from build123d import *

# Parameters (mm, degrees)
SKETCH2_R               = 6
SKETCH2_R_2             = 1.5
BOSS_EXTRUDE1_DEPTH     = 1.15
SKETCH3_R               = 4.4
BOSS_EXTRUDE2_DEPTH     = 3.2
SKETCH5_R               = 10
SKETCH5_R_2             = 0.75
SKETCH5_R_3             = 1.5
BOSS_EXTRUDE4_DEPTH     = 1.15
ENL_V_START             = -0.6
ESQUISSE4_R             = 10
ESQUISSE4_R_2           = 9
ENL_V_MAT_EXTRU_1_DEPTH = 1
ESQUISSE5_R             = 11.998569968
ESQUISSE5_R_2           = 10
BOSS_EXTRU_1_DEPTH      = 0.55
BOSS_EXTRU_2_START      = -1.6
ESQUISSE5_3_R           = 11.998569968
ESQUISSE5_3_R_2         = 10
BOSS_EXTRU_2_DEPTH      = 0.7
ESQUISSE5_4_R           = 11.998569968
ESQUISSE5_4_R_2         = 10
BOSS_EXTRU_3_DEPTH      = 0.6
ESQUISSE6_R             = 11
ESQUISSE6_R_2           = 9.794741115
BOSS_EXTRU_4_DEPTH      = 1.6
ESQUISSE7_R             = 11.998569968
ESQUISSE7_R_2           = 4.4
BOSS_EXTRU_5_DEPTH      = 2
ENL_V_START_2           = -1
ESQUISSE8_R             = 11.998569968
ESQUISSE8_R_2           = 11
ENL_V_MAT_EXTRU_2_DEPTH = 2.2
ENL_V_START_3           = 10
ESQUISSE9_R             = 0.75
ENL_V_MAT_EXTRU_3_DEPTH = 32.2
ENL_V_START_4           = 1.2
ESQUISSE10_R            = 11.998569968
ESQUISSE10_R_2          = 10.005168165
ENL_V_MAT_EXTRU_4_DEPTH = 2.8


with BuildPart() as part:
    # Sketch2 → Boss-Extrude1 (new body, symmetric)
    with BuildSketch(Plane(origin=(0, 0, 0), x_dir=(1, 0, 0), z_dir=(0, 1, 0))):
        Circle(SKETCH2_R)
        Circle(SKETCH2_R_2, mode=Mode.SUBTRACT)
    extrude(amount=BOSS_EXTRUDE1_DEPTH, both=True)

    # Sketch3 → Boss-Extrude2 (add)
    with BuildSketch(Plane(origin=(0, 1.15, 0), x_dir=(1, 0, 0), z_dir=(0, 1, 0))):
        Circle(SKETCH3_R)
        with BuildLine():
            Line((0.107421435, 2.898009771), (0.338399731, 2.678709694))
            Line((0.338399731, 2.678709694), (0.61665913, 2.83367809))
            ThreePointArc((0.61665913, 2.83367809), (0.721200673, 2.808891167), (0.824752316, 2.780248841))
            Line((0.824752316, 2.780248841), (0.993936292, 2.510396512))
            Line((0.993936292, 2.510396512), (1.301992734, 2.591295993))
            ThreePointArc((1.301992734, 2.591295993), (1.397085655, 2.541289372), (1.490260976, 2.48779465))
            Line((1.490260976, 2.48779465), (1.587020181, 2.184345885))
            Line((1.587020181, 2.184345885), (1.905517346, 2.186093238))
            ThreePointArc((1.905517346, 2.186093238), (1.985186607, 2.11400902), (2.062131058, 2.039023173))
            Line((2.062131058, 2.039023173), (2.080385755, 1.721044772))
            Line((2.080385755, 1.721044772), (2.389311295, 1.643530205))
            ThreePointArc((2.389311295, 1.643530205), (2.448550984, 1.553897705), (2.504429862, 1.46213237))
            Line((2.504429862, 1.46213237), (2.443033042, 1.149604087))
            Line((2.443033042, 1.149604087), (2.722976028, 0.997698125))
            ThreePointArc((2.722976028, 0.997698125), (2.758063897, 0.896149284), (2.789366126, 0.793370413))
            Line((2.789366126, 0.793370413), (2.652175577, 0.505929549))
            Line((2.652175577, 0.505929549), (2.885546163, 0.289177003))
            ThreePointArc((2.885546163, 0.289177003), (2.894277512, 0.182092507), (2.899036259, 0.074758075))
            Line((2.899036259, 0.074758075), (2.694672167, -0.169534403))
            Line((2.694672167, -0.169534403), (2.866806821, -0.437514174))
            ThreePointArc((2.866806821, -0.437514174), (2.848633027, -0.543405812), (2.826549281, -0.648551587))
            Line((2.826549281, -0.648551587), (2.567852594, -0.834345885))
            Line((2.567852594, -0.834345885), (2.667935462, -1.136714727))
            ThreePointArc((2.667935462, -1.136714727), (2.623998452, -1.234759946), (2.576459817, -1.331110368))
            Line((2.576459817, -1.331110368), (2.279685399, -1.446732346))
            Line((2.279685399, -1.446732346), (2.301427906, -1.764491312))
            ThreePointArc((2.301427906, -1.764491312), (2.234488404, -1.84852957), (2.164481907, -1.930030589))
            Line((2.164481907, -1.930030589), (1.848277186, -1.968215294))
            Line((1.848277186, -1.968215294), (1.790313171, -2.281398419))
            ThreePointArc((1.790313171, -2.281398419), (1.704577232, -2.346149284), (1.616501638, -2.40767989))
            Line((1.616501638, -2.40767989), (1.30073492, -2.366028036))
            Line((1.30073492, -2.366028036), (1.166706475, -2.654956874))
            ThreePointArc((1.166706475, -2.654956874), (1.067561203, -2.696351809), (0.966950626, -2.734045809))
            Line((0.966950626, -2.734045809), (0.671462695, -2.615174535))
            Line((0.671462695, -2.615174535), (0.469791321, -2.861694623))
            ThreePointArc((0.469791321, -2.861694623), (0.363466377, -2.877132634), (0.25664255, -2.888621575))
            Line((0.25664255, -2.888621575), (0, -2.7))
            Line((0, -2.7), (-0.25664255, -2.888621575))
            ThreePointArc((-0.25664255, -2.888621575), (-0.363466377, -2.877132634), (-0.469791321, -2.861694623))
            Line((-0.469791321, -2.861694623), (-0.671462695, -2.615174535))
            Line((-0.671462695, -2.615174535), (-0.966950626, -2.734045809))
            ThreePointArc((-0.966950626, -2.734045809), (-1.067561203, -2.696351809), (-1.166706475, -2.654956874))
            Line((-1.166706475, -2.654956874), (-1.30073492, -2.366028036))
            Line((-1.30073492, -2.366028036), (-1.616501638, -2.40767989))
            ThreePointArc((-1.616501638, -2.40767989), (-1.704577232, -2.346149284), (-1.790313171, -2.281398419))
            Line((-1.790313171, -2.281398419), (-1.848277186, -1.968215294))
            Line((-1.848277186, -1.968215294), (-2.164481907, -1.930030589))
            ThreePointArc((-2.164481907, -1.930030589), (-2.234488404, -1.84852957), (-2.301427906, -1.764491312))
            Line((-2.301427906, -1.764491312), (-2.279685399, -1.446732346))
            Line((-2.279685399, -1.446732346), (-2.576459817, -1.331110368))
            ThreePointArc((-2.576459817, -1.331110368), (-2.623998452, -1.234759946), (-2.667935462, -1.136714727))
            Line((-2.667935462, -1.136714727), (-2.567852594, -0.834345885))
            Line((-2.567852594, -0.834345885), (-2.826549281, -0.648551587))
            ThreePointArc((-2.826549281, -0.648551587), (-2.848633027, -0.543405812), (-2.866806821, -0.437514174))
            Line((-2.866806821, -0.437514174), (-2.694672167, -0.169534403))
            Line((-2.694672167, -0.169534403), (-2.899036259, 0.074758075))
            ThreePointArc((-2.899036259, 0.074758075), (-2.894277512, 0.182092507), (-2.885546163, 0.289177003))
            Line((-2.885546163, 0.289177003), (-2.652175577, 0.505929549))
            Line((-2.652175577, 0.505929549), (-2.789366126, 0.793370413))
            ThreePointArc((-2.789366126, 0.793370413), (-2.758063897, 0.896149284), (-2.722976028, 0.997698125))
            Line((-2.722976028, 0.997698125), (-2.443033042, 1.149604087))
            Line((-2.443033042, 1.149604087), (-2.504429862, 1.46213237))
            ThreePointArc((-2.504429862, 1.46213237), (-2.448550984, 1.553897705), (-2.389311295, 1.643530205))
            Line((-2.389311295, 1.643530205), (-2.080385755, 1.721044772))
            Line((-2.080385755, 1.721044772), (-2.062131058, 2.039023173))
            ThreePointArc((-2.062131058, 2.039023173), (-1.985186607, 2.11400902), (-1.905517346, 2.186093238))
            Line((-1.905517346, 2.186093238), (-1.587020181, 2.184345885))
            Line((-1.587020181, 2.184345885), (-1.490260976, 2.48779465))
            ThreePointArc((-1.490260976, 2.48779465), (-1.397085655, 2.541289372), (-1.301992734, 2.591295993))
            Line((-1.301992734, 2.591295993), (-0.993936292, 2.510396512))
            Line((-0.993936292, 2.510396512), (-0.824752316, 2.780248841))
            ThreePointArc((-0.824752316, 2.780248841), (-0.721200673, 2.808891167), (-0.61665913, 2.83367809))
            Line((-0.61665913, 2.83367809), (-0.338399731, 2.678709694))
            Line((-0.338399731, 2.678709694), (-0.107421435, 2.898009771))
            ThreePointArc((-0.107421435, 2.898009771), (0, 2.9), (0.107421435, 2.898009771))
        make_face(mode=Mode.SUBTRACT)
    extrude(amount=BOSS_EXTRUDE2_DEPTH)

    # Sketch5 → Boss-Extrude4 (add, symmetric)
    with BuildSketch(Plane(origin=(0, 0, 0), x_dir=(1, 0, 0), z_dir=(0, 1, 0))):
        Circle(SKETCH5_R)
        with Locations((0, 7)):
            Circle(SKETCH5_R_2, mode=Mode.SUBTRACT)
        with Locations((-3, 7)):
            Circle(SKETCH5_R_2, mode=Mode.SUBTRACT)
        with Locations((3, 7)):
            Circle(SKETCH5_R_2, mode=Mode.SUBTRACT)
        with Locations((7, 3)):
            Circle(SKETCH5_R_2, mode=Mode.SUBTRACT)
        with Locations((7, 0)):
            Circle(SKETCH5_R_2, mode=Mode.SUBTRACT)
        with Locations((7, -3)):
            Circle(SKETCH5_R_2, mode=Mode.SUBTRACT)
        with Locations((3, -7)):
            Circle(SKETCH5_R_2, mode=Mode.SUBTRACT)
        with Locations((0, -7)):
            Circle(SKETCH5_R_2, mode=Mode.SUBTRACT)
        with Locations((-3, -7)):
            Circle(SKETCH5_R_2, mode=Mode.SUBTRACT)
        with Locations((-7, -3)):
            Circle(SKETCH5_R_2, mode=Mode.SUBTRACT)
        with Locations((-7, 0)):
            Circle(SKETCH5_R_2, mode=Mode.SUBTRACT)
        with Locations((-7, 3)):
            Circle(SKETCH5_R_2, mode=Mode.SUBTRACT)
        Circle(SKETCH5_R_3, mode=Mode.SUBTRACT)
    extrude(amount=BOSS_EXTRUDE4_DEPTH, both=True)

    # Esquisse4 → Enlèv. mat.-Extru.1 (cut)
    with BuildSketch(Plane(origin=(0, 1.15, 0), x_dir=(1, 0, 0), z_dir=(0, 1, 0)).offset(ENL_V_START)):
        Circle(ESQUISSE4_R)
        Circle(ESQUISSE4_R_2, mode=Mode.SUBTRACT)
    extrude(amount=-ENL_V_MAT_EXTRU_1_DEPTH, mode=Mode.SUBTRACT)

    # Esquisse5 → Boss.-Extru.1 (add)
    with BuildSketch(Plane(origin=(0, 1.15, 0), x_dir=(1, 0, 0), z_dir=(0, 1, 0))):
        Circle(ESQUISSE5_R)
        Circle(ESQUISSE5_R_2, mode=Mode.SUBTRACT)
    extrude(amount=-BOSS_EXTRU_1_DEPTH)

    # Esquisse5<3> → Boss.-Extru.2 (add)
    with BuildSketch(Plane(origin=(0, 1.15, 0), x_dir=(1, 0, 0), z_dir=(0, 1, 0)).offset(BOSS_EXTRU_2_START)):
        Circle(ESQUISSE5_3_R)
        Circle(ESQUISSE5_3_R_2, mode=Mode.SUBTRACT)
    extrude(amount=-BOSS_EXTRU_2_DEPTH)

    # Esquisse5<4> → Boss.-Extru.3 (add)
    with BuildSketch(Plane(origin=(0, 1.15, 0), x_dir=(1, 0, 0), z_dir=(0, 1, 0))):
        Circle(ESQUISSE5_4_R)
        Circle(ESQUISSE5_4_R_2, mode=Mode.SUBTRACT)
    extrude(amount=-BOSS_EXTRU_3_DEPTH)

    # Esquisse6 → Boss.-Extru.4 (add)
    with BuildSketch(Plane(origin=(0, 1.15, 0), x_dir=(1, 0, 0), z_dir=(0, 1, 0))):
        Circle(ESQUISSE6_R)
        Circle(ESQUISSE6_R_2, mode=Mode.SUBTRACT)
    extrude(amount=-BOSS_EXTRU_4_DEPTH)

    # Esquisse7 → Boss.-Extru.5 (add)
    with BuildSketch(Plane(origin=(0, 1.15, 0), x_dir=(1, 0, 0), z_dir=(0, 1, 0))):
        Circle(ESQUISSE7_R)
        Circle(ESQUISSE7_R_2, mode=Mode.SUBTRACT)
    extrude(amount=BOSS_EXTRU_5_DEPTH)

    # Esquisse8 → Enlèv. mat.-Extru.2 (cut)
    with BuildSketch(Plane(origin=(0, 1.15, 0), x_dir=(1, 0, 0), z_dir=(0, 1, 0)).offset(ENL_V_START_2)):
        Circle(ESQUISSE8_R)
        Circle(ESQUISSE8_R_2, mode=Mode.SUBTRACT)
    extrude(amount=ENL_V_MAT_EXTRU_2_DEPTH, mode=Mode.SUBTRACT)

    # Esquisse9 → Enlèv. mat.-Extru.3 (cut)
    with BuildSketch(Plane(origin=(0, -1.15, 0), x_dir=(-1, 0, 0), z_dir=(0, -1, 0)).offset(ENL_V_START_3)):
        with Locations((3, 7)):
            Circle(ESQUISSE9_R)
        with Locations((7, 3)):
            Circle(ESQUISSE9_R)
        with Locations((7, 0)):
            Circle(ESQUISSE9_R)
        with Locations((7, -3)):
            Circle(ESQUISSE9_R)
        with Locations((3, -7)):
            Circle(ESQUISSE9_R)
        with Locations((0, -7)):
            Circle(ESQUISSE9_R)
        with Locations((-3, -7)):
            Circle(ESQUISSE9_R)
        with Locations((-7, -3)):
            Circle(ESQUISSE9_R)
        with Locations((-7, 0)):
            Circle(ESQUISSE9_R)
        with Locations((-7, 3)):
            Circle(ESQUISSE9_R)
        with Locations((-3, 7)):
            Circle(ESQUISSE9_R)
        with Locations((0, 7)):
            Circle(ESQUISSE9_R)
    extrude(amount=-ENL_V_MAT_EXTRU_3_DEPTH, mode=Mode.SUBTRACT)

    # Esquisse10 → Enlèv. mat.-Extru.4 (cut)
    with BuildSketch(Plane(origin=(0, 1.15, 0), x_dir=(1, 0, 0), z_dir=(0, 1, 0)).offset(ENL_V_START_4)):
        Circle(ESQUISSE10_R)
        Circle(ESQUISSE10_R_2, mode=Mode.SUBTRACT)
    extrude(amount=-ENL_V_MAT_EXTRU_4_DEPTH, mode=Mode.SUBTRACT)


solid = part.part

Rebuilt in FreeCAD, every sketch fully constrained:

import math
import FreeCAD as App
import Part
import Sketcher

doc = App.newDocument("Part")
body = doc.addObject("PartDesign::Body", "Body")

# Sketch on XZ plane
sketch1 = body.newObject("Sketcher::SketchObject", "Sketch")
sketch1.AttachmentSupport = (doc.getObject("XZ_Plane"), [""])
sketch1.MapMode = "FlatFace"
sketch1.addGeometry(Part.Circle(App.Vector(0, 0, 0), App.Vector(0, 0, 1), 6), False)
sketch1.addGeometry(Part.Circle(App.Vector(0, 0, 0), App.Vector(0, 0, 1), 1.5), False)
sketch1.addConstraint(Sketcher.Constraint("Coincident", 0, 3, -1, 1))
sketch1.addConstraint(Sketcher.Constraint("Coincident", 1, 3, -1, 1))
sketch1.addConstraint(Sketcher.Constraint("Diameter", 0, 12.0))
sketch1.addConstraint(Sketcher.Constraint("Diameter", 1, 3.0))
pad1 = body.newObject("PartDesign::Pad", "Pad")
pad1.Profile = sketch1
pad1.Length = 2.3
pad1.Midplane = True

# Sketch on XZ plane
sketch2 = body.newObject("Sketcher::SketchObject", "Sketch001")
sketch2.AttachmentSupport = (doc.getObject("XZ_Plane"), [""])
sketch2.MapMode = "FlatFace"
sketch2.AttachmentOffset = App.Placement(App.Vector(0, 0, -1.15), App.Rotation())
sketch2.addGeometry(Part.Circle(App.Vector(0, 0, 0), App.Vector(0, 0, 1), 4.4), False)
sketch2.addGeometry(Part.ArcOfCircle(Part.Circle(App.Vector(0, -0.000001, 0), App.Vector(0, 0, 1), 2.899999), math.radians(-92.122829), math.radians(-87.877171)), False)
sketch2.addGeometry(Part.LineSegment(App.Vector(0.107421, -2.89801, 0), App.Vector(0.3384, -2.67871, 0)), False)
sketch2.addGeometry(Part.LineSegment(App.Vector(0.3384, -2.67871, 0), App.Vector(0.616659, -2.833678, 0)), False)
sketch2.addGeometry(Part.ArcOfCircle(Part.Circle(App.Vector(0, 0, 0), App.Vector(0, 0, 1), 2.9), math.radians(-77.722828), math.radians(-73.477172)), False)
sketch2.addGeometry(Part.LineSegment(App.Vector(0.824752, -2.780249, 0), App.Vector(0.993936, -2.510397, 0)), False)
sketch2.addGeometry(Part.LineSegment(App.Vector(0.993936, -2.510397, 0), App.Vector(1.301993, -2.591296, 0)), False)
sketch2.addGeometry(Part.ArcOfCircle(Part.Circle(App.Vector(0, 0, 0), App.Vector(0, 0, 1), 2.9), math.radians(-63.322828), math.radians(-59.077171)), False)
sketch2.addGeometry(Part.LineSegment(App.Vector(1.490261, -2.487795, 0), App.Vector(1.58702, -2.184346, 0)), False)
sketch2.addGeometry(Part.LineSegment(App.Vector(1.58702, -2.184346, 0), App.Vector(1.905517, -2.186093, 0)), False)
sketch2.addGeometry(Part.ArcOfCircle(Part.Circle(App.Vector(0, 0, 0), App.Vector(0, 0, 1), 2.9), math.radians(-48.922829), math.radians(-44.677171)), False)
sketch2.addGeometry(Part.LineSegment(App.Vector(2.062131, -2.039023, 0), App.Vector(2.080386, -1.721045, 0)), False)
sketch2.addGeometry(Part.LineSegment(App.Vector(2.080386, -1.721045, 0), App.Vector(2.389311, -1.64353, 0)), False)
sketch2.addGeometry(Part.ArcOfCircle(Part.Circle(App.Vector(0, 0, 0), App.Vector(0, 0, 1), 2.9), math.radians(-34.522829), math.radians(-30.277172)), False)
sketch2.addGeometry(Part.LineSegment(App.Vector(2.50443, -1.462132, 0), App.Vector(2.443033, -1.149604, 0)), False)
sketch2.addGeometry(Part.LineSegment(App.Vector(2.443033, -1.149604, 0), App.Vector(2.722976, -0.997698, 0)), False)
sketch2.addGeometry(Part.ArcOfCircle(Part.Circle(App.Vector(0, 0, 0), App.Vector(0, 0, 1), 2.9), math.radians(-20.122829), math.radians(-15.877171)), False)
sketch2.addGeometry(Part.LineSegment(App.Vector(2.789366, -0.79337, 0), App.Vector(2.652176, -0.50593, 0)), False)
sketch2.addGeometry(Part.LineSegment(App.Vector(2.652176, -0.50593, 0), App.Vector(2.885546, -0.289177, 0)), False)
sketch2.addGeometry(Part.ArcOfCircle(Part.Circle(App.Vector(0, 0, 0), App.Vector(0, 0, 1), 2.9), math.radians(-5.722829), math.radians(-1.477172)), False)
sketch2.addGeometry(Part.LineSegment(App.Vector(2.899036, -0.074758, 0), App.Vector(2.694672, 0.169534, 0)), False)
sketch2.addGeometry(Part.LineSegment(App.Vector(2.694672, 0.169534, 0), App.Vector(2.866807, 0.437514, 0)), False)
sketch2.addGeometry(Part.ArcOfCircle(Part.Circle(App.Vector(0, 0, 0), App.Vector(0, 0, 1), 2.9), math.radians(8.677172), math.radians(12.922829)), False)
sketch2.addGeometry(Part.LineSegment(App.Vector(2.826549, 0.648552, 0), App.Vector(2.567853, 0.834346, 0)), False)
sketch2.addGeometry(Part.LineSegment(App.Vector(2.567853, 0.834346, 0), App.Vector(2.667935, 1.136715, 0)), False)
sketch2.addGeometry(Part.ArcOfCircle(Part.Circle(App.Vector(0, 0, 0), App.Vector(0, 0, 1), 2.9), math.radians(23.077171), math.radians(27.322829)), False)
sketch2.addGeometry(Part.LineSegment(App.Vector(2.57646, 1.33111, 0), App.Vector(2.279685, 1.446732, 0)), False)
sketch2.addGeometry(Part.LineSegment(App.Vector(2.279685, 1.446732, 0), App.Vector(2.301428, 1.764491, 0)), False)
sketch2.addGeometry(Part.ArcOfCircle(Part.Circle(App.Vector(0, 0, 0), App.Vector(0, 0, 1), 2.9), math.radians(37.477171), math.radians(41.722829)), False)
sketch2.addGeometry(Part.LineSegment(App.Vector(2.164482, 1.930031, 0), App.Vector(1.848277, 1.968215, 0)), False)
sketch2.addGeometry(Part.LineSegment(App.Vector(1.848277, 1.968215, 0), App.Vector(1.790313, 2.281398, 0)), False)
sketch2.addGeometry(Part.ArcOfCircle(Part.Circle(App.Vector(0.000001, 0.000001, 0), App.Vector(0, 0, 1), 2.899999), math.radians(51.87717), math.radians(56.12283)), False)
sketch2.addGeometry(Part.LineSegment(App.Vector(1.616502, 2.40768, 0), App.Vector(1.300735, 2.366028, 0)), False)
sketch2.addGeometry(Part.LineSegment(App.Vector(1.300735, 2.366028, 0), App.Vector(1.166706, 2.654957, 0)), False)
sketch2.addGeometry(Part.ArcOfCircle(Part.Circle(App.Vector(0, 0, 0), App.Vector(0, 0, 1), 2.9), math.radians(66.277171), math.radians(70.522829)), False)
sketch2.addGeometry(Part.LineSegment(App.Vector(0.966951, 2.734046, 0), App.Vector(0.671463, 2.615175, 0)), False)
sketch2.addGeometry(Part.LineSegment(App.Vector(0.671463, 2.615175, 0), App.Vector(0.469791, 2.861695, 0)), False)
sketch2.addGeometry(Part.ArcOfCircle(Part.Circle(App.Vector(0, 0, 0), App.Vector(0, 0, 1), 2.9), math.radians(80.677171), math.radians(84.922829)), False)
sketch2.addGeometry(Part.LineSegment(App.Vector(0.256643, 2.888622, 0), App.Vector(0, 2.7, 0)), False)
sketch2.addGeometry(Part.LineSegment(App.Vector(0, 2.7, 0), App.Vector(-0.256643, 2.888622, 0)), False)
sketch2.addGeometry(Part.ArcOfCircle(Part.Circle(App.Vector(0, 0, 0), App.Vector(0, 0, 1), 2.9), math.radians(95.077171), math.radians(99.322829)), False)
sketch2.addGeometry(Part.LineSegment(App.Vector(-0.469791, 2.861695, 0), App.Vector(-0.671463, 2.615175, 0)), False)
sketch2.addGeometry(Part.LineSegment(App.Vector(-0.671463, 2.615175, 0), App.Vector(-0.966951, 2.734046, 0)), False)
sketch2.addGeometry(Part.ArcOfCircle(Part.Circle(App.Vector(0, 0, 0), App.Vector(0, 0, 1), 2.9), math.radians(109.477171), math.radians(113.722829)), False)
sketch2.addGeometry(Part.LineSegment(App.Vector(-1.166706, 2.654957, 0), App.Vector(-1.300735, 2.366028, 0)), False)
sketch2.addGeometry(Part.LineSegment(App.Vector(-1.300735, 2.366028, 0), App.Vector(-1.616502, 2.40768, 0)), False)
sketch2.addGeometry(Part.ArcOfCircle(Part.Circle(App.Vector(-0.000001, 0.000001, 0), App.Vector(0, 0, 1), 2.899999), math.radians(123.87717), math.radians(128.12283)), False)
sketch2.addGeometry(Part.LineSegment(App.Vector(-1.790313, 2.281398, 0), App.Vector(-1.848277, 1.968215, 0)), False)
sketch2.addGeometry(Part.LineSegment(App.Vector(-1.848277, 1.968215, 0), App.Vector(-2.164482, 1.930031, 0)), False)
sketch2.addGeometry(Part.ArcOfCircle(Part.Circle(App.Vector(0, 0, 0), App.Vector(0, 0, 1), 2.9), math.radians(138.277171), math.radians(142.522829)), False)
sketch2.addGeometry(Part.LineSegment(App.Vector(-2.301428, 1.764491, 0), App.Vector(-2.279685, 1.446732, 0)), False)
sketch2.addGeometry(Part.LineSegment(App.Vector(-2.279685, 1.446732, 0), App.Vector(-2.57646, 1.33111, 0)), False)
sketch2.addGeometry(Part.ArcOfCircle(Part.Circle(App.Vector(0, 0, 0), App.Vector(0, 0, 1), 2.9), math.radians(152.677171), math.radians(156.922829)), False)
sketch2.addGeometry(Part.LineSegment(App.Vector(-2.667935, 1.136715, 0), App.Vector(-2.567853, 0.834346, 0)), False)
sketch2.addGeometry(Part.LineSegment(App.Vector(-2.567853, 0.834346, 0), App.Vector(-2.826549, 0.648552, 0)), False)
sketch2.addGeometry(Part.ArcOfCircle(Part.Circle(App.Vector(0, 0, 0), App.Vector(0, 0, 1), 2.9), math.radians(167.077171), math.radians(171.322828)), False)
sketch2.addGeometry(Part.LineSegment(App.Vector(-2.866807, 0.437514, 0), App.Vector(-2.694672, 0.169534, 0)), False)
sketch2.addGeometry(Part.LineSegment(App.Vector(-2.694672, 0.169534, 0), App.Vector(-2.899036, -0.074758, 0)), False)
sketch2.addGeometry(Part.ArcOfCircle(Part.Circle(App.Vector(0, 0, 0), App.Vector(0, 0, 1), 2.9), math.radians(-178.522828), math.radians(-174.277171)), False)
sketch2.addGeometry(Part.LineSegment(App.Vector(-2.885546, -0.289177, 0), App.Vector(-2.652176, -0.50593, 0)), False)
sketch2.addGeometry(Part.LineSegment(App.Vector(-2.652176, -0.50593, 0), App.Vector(-2.789366, -0.79337, 0)), False)
sketch2.addGeometry(Part.ArcOfCircle(Part.Circle(App.Vector(0, 0, 0), App.Vector(0, 0, 1), 2.9), math.radians(-164.122829), math.radians(-159.877171)), False)
sketch2.addGeometry(Part.LineSegment(App.Vector(-2.722976, -0.997698, 0), App.Vector(-2.443033, -1.149604, 0)), False)
sketch2.addGeometry(Part.LineSegment(App.Vector(-2.443033, -1.149604, 0), App.Vector(-2.50443, -1.462132, 0)), False)
sketch2.addGeometry(Part.ArcOfCircle(Part.Circle(App.Vector(0, 0, 0), App.Vector(0, 0, 1), 2.9), math.radians(-149.722828), math.radians(-145.477171)), False)
sketch2.addGeometry(Part.LineSegment(App.Vector(-2.389311, -1.64353, 0), App.Vector(-2.080386, -1.721045, 0)), False)
sketch2.addGeometry(Part.LineSegment(App.Vector(-2.080386, -1.721045, 0), App.Vector(-2.062131, -2.039023, 0)), False)
sketch2.addGeometry(Part.ArcOfCircle(Part.Circle(App.Vector(0, 0, 0), App.Vector(0, 0, 1), 2.9), math.radians(-135.322829), math.radians(-131.077171)), False)
sketch2.addGeometry(Part.LineSegment(App.Vector(-1.905517, -2.186093, 0), App.Vector(-1.58702, -2.184346, 0)), False)
sketch2.addGeometry(Part.LineSegment(App.Vector(-1.58702, -2.184346, 0), App.Vector(-1.490261, -2.487795, 0)), False)
sketch2.addGeometry(Part.ArcOfCircle(Part.Circle(App.Vector(0, 0, 0), App.Vector(0, 0, 1), 2.9), math.radians(-120.922829), math.radians(-116.677172)), False)
sketch2.addGeometry(Part.LineSegment(App.Vector(-1.301993, -2.591296, 0), App.Vector(-0.993936, -2.510397, 0)), False)
sketch2.addGeometry(Part.LineSegment(App.Vector(-0.993936, -2.510397, 0), App.Vector(-0.824752, -2.780249, 0)), False)
sketch2.addGeometry(Part.ArcOfCircle(Part.Circle(App.Vector(0, 0, 0), App.Vector(0, 0, 1), 2.9), math.radians(-106.522828), math.radians(-102.277172)), False)
sketch2.addGeometry(Part.LineSegment(App.Vector(-0.616659, -2.833678, 0), App.Vector(-0.3384, -2.67871, 0)), False)
sketch2.addGeometry(Part.LineSegment(App.Vector(-0.3384, -2.67871, 0), App.Vector(-0.107421, -2.89801, 0)), False)
sketch2.addConstraint(Sketcher.Constraint("Coincident", 1, 2, 2, 1))
sketch2.addConstraint(Sketcher.Constraint("Coincident", 2, 2, 3, 1))
sketch2.addConstraint(Sketcher.Constraint("Coincident", 3, 2, 4, 1))
sketch2.addConstraint(Sketcher.Constraint("Coincident", 4, 2, 5, 1))
sketch2.addConstraint(Sketcher.Constraint("Coincident", 5, 2, 6, 1))
sketch2.addConstraint(Sketcher.Constraint("Coincident", 6, 2, 7, 1))
sketch2.addConstraint(Sketcher.Constraint("Coincident", 7, 2, 8, 1))
sketch2.addConstraint(Sketcher.Constraint("Coincident", 8, 2, 9, 1))
sketch2.addConstraint(Sketcher.Constraint("Coincident", 9, 2, 10, 1))
sketch2.addConstraint(Sketcher.Constraint("Coincident", 10, 2, 11, 1))
sketch2.addConstraint(Sketcher.Constraint("Coincident", 11, 2, 12, 1))
sketch2.addConstraint(Sketcher.Constraint("Coincident", 12, 2, 13, 1))
sketch2.addConstraint(Sketcher.Constraint("Coincident", 13, 2, 14, 1))
sketch2.addConstraint(Sketcher.Constraint("Coincident", 14, 2, 15, 1))
sketch2.addConstraint(Sketcher.Constraint("Coincident", 15, 2, 16, 1))
sketch2.addConstraint(Sketcher.Constraint("Coincident", 16, 2, 17, 1))
sketch2.addConstraint(Sketcher.Constraint("Coincident", 17, 2, 18, 1))
sketch2.addConstraint(Sketcher.Constraint("Coincident", 18, 2, 19, 1))
sketch2.addConstraint(Sketcher.Constraint("Coincident", 19, 2, 20, 1))
sketch2.addConstraint(Sketcher.Constraint("Coincident", 20, 2, 21, 1))
sketch2.addConstraint(Sketcher.Constraint("Coincident", 21, 2, 22, 1))
sketch2.addConstraint(Sketcher.Constraint("Coincident", 22, 2, 23, 1))
sketch2.addConstraint(Sketcher.Constraint("Coincident", 23, 2, 24, 1))
sketch2.addConstraint(Sketcher.Constraint("Coincident", 24, 2, 25, 1))
sketch2.addConstraint(Sketcher.Constraint("Coincident", 25, 2, 26, 1))
sketch2.addConstraint(Sketcher.Constraint("Coincident", 26, 2, 27, 1))
sketch2.addConstraint(Sketcher.Constraint("Coincident", 27, 2, 28, 1))
sketch2.addConstraint(Sketcher.Constraint("Coincident", 28, 2, 29, 1))
sketch2.addConstraint(Sketcher.Constraint("Coincident", 29, 2, 30, 1))
sketch2.addConstraint(Sketcher.Constraint("Coincident", 30, 2, 31, 1))
sketch2.addConstraint(Sketcher.Constraint("Coincident", 31, 2, 32, 1))
sketch2.addConstraint(Sketcher.Constraint("Coincident", 32, 2, 33, 1))
sketch2.addConstraint(Sketcher.Constraint("Coincident", 33, 2, 34, 1))
sketch2.addConstraint(Sketcher.Constraint("Coincident", 34, 2, 35, 1))
sketch2.addConstraint(Sketcher.Constraint("Coincident", 35, 2, 36, 1))
sketch2.addConstraint(Sketcher.Constraint("Coincident", 36, 2, 37, 1))
sketch2.addConstraint(Sketcher.Constraint("Coincident", 37, 2, 38, 1))
sketch2.addConstraint(Sketcher.Constraint("Coincident", 38, 2, 39, 1))
sketch2.addConstraint(Sketcher.Constraint("Coincident", 39, 2, 40, 1))
sketch2.addConstraint(Sketcher.Constraint("Coincident", 40, 2, 41, 1))
sketch2.addConstraint(Sketcher.Constraint("Coincident", 41, 2, 42, 1))
sketch2.addConstraint(Sketcher.Constraint("Coincident", 42, 2, 43, 1))
sketch2.addConstraint(Sketcher.Constraint("Coincident", 43, 2, 44, 1))
sketch2.addConstraint(Sketcher.Constraint("Coincident", 44, 2, 45, 1))
sketch2.addConstraint(Sketcher.Constraint("Coincident", 45, 2, 46, 1))
sketch2.addConstraint(Sketcher.Constraint("Coincident", 46, 2, 47, 1))
sketch2.addConstraint(Sketcher.Constraint("Coincident", 47, 2, 48, 1))
sketch2.addConstraint(Sketcher.Constraint("Coincident", 48, 2, 49, 1))
sketch2.addConstraint(Sketcher.Constraint("Coincident", 49, 2, 50, 1))
sketch2.addConstraint(Sketcher.Constraint("Coincident", 50, 2, 51, 1))
sketch2.addConstraint(Sketcher.Constraint("Coincident", 51, 2, 52, 1))
sketch2.addConstraint(Sketcher.Constraint("Coincident", 52, 2, 53, 1))
sketch2.addConstraint(Sketcher.Constraint("Coincident", 53, 2, 54, 1))
sketch2.addConstraint(Sketcher.Constraint("Coincident", 54, 2, 55, 1))
sketch2.addConstraint(Sketcher.Constraint("Coincident", 55, 2, 56, 1))
sketch2.addConstraint(Sketcher.Constraint("Coincident", 56, 2, 57, 1))
sketch2.addConstraint(Sketcher.Constraint("Coincident", 57, 2, 58, 1))
sketch2.addConstraint(Sketcher.Constraint("Coincident", 58, 2, 59, 1))
sketch2.addConstraint(Sketcher.Constraint("Coincident", 59, 2, 60, 1))
sketch2.addConstraint(Sketcher.Constraint("Coincident", 60, 2, 61, 1))
sketch2.addConstraint(Sketcher.Constraint("Coincident", 61, 2, 62, 1))
sketch2.addConstraint(Sketcher.Constraint("Coincident", 62, 2, 63, 1))
sketch2.addConstraint(Sketcher.Constraint("Coincident", 63, 2, 64, 1))
sketch2.addConstraint(Sketcher.Constraint("Coincident", 64, 2, 65, 1))
sketch2.addConstraint(Sketcher.Constraint("Coincident", 65, 2, 66, 1))
sketch2.addConstraint(Sketcher.Constraint("Coincident", 66, 2, 67, 1))
sketch2.addConstraint(Sketcher.Constraint("Coincident", 67, 2, 68, 1))
sketch2.addConstraint(Sketcher.Constraint("Coincident", 68, 2, 69, 1))
sketch2.addConstraint(Sketcher.Constraint("Coincident", 69, 2, 70, 1))
sketch2.addConstraint(Sketcher.Constraint("Coincident", 70, 2, 71, 1))
sketch2.addConstraint(Sketcher.Constraint("Coincident", 71, 2, 72, 1))
sketch2.addConstraint(Sketcher.Constraint("Coincident", 72, 2, 73, 1))
sketch2.addConstraint(Sketcher.Constraint("Coincident", 73, 2, 74, 1))
sketch2.addConstraint(Sketcher.Constraint("Coincident", 74, 2, 75, 1))
sketch2.addConstraint(Sketcher.Constraint("Coincident", 75, 2, 1, 1))
sketch2.addConstraint(Sketcher.Constraint("Coincident", 0, 3, -1, 1))
sketch2.addConstraint(Sketcher.Constraint("Coincident", 1, 3, -1, 1))
sketch2.addConstraint(Sketcher.Constraint("Coincident", 4, 3, -1, 1))
sketch2.addConstraint(Sketcher.Constraint("Coincident", 7, 3, -1, 1))
sketch2.addConstraint(Sketcher.Constraint("Coincident", 10, 3, -1, 1))
sketch2.addConstraint(Sketcher.Constraint("Coincident", 13, 3, -1, 1))
sketch2.addConstraint(Sketcher.Constraint("Coincident", 16, 3, -1, 1))
sketch2.addConstraint(Sketcher.Constraint("Coincident", 19, 3, -1, 1))
sketch2.addConstraint(Sketcher.Constraint("Coincident", 22, 3, -1, 1))
sketch2.addConstraint(Sketcher.Constraint("Coincident", 25, 3, -1, 1))
sketch2.addConstraint(Sketcher.Constraint("Coincident", 28, 3, -1, 1))
sketch2.addConstraint(Sketcher.Constraint("Coincident", 31, 3, -1, 1))
sketch2.addConstraint(Sketcher.Constraint("Coincident", 34, 3, -1, 1))
sketch2.addConstraint(Sketcher.Constraint("Coincident", 37, 3, -1, 1))
sketch2.addConstraint(Sketcher.Constraint("Coincident", 40, 3, -1, 1))
sketch2.addConstraint(Sketcher.Constraint("Coincident", 43, 3, -1, 1))
sketch2.addConstraint(Sketcher.Constraint("Coincident", 46, 3, -1, 1))
sketch2.addConstraint(Sketcher.Constraint("Coincident", 49, 3, -1, 1))
sketch2.addConstraint(Sketcher.Constraint("Coincident", 52, 3, -1, 1))
sketch2.addConstraint(Sketcher.Constraint("Coincident", 55, 3, -1, 1))
sketch2.addConstraint(Sketcher.Constraint("Coincident", 58, 3, -1, 1))
sketch2.addConstraint(Sketcher.Constraint("Coincident", 61, 3, -1, 1))
sketch2.addConstraint(Sketcher.Constraint("Coincident", 64, 3, -1, 1))
sketch2.addConstraint(Sketcher.Constraint("Coincident", 67, 3, -1, 1))
sketch2.addConstraint(Sketcher.Constraint("Coincident", 70, 3, -1, 1))
sketch2.addConstraint(Sketcher.Constraint("Coincident", 73, 3, -1, 1))
sketch2.addConstraint(Sketcher.Constraint("Equal", 1, 4))
sketch2.addConstraint(Sketcher.Constraint("Equal", 4, 7))
sketch2.addConstraint(Sketcher.Constraint("Equal", 7, 10))
sketch2.addConstraint(Sketcher.Constraint("Equal", 10, 13))
sketch2.addConstraint(Sketcher.Constraint("Equal", 13, 16))
sketch2.addConstraint(Sketcher.Constraint("Equal", 16, 19))
sketch2.addConstraint(Sketcher.Constraint("Equal", 19, 22))
sketch2.addConstraint(Sketcher.Constraint("Equal", 22, 25))
sketch2.addConstraint(Sketcher.Constraint("Equal", 25, 28))
sketch2.addConstraint(Sketcher.Constraint("Equal", 28, 31))
sketch2.addConstraint(Sketcher.Constraint("Equal", 31, 34))
sketch2.addConstraint(Sketcher.Constraint("Equal", 34, 37))
sketch2.addConstraint(Sketcher.Constraint("Equal", 37, 40))
sketch2.addConstraint(Sketcher.Constraint("Equal", 40, 43))
sketch2.addConstraint(Sketcher.Constraint("Equal", 43, 46))
sketch2.addConstraint(Sketcher.Constraint("Equal", 46, 49))
sketch2.addConstraint(Sketcher.Constraint("Equal", 49, 52))
sketch2.addConstraint(Sketcher.Constraint("Equal", 52, 55))
sketch2.addConstraint(Sketcher.Constraint("Equal", 55, 58))
sketch2.addConstraint(Sketcher.Constraint("Equal", 58, 61))
sketch2.addConstraint(Sketcher.Constraint("Equal", 61, 64))
sketch2.addConstraint(Sketcher.Constraint("Equal", 64, 67))
sketch2.addConstraint(Sketcher.Constraint("Equal", 67, 70))
sketch2.addConstraint(Sketcher.Constraint("Equal", 70, 73))
sketch2.addConstraint(Sketcher.Constraint("Symmetric", 35, 2, 41, 2, -2))
sketch2.addConstraint(Sketcher.Constraint("Symmetric", 32, 2, 44, 2, -2))
sketch2.addConstraint(Sketcher.Constraint("Symmetric", 29, 2, 47, 2, -2))
sketch2.addConstraint(Sketcher.Constraint("Symmetric", 26, 2, 50, 2, -2))
sketch2.addConstraint(Sketcher.Constraint("Symmetric", 23, 2, 53, 2, -2))
sketch2.addConstraint(Sketcher.Constraint("Symmetric", 20, 2, 56, 2, -2))
sketch2.addConstraint(Sketcher.Constraint("Symmetric", 17, 2, 59, 2, -2))
sketch2.addConstraint(Sketcher.Constraint("Symmetric", 14, 2, 62, 2, -2))
sketch2.addConstraint(Sketcher.Constraint("Symmetric", 11, 2, 65, 2, -2))
sketch2.addConstraint(Sketcher.Constraint("Symmetric", 8, 2, 68, 2, -2))
sketch2.addConstraint(Sketcher.Constraint("Symmetric", 5, 2, 71, 2, -2))
sketch2.addConstraint(Sketcher.Constraint("Symmetric", 2, 2, 74, 2, -2))
sketch2.addConstraint(Sketcher.Constraint("PointOnObject", 38, 2, -2))
sketch2.addConstraint(Sketcher.Constraint("Horizontal", 37, 2, 39, 2))
sketch2.addConstraint(Sketcher.Constraint("Horizontal", 36, 2, 40, 2))
sketch2.addConstraint(Sketcher.Constraint("Horizontal", 34, 2, 42, 2))
sketch2.addConstraint(Sketcher.Constraint("Horizontal", 33, 2, 43, 2))
sketch2.addConstraint(Sketcher.Constraint("Horizontal", 31, 2, 45, 2))
sketch2.addConstraint(Sketcher.Constraint("Horizontal", 30, 2, 46, 2))
sketch2.addConstraint(Sketcher.Constraint("Horizontal", 28, 2, 48, 2))
sketch2.addConstraint(Sketcher.Constraint("Horizontal", 27, 2, 49, 2))
sketch2.addConstraint(Sketcher.Constraint("Horizontal", 25, 2, 51, 2))
sketch2.addConstraint(Sketcher.Constraint("Horizontal", 24, 2, 52, 2))
sketch2.addConstraint(Sketcher.Constraint("Horizontal", 22, 2, 54, 2))
sketch2.addConstraint(Sketcher.Constraint("Horizontal", 21, 2, 55, 2))
sketch2.addConstraint(Sketcher.Constraint("Horizontal", 19, 2, 57, 2))
sketch2.addConstraint(Sketcher.Constraint("Horizontal", 18, 2, 58, 2))
sketch2.addConstraint(Sketcher.Constraint("Horizontal", 16, 2, 60, 2))
sketch2.addConstraint(Sketcher.Constraint("Horizontal", 15, 2, 61, 2))
sketch2.addConstraint(Sketcher.Constraint("Horizontal", 13, 2, 63, 2))
sketch2.addConstraint(Sketcher.Constraint("Horizontal", 12, 2, 64, 2))
sketch2.addConstraint(Sketcher.Constraint("Horizontal", 10, 2, 66, 2))
sketch2.addConstraint(Sketcher.Constraint("Horizontal", 9, 2, 67, 2))
sketch2.addConstraint(Sketcher.Constraint("Horizontal", 7, 2, 69, 2))
sketch2.addConstraint(Sketcher.Constraint("Horizontal", 6, 2, 70, 2))
sketch2.addConstraint(Sketcher.Constraint("Horizontal", 4, 2, 72, 2))
sketch2.addConstraint(Sketcher.Constraint("Horizontal", 3, 2, 73, 2))
sketch2.addConstraint(Sketcher.Constraint("Horizontal", 1, 2, 75, 2))
sketch2.addConstraint(Sketcher.Constraint("Equal", 2, 3))
sketch2.addConstraint(Sketcher.Constraint("Equal", 3, 5))
sketch2.addConstraint(Sketcher.Constraint("Equal", 5, 6))
sketch2.addConstraint(Sketcher.Constraint("Equal", 6, 8))
sketch2.addConstraint(Sketcher.Constraint("Equal", 8, 9))
sketch2.addConstraint(Sketcher.Constraint("Equal", 9, 11))
sketch2.addConstraint(Sketcher.Constraint("Equal", 11, 12))
sketch2.addConstraint(Sketcher.Constraint("Equal", 12, 14))
sketch2.addConstraint(Sketcher.Constraint("Equal", 14, 15))
sketch2.addConstraint(Sketcher.Constraint("Equal", 15, 17))
sketch2.addConstraint(Sketcher.Constraint("Equal", 17, 18))
sketch2.addConstraint(Sketcher.Constraint("Equal", 18, 20))
sketch2.addConstraint(Sketcher.Constraint("Equal", 20, 21))
sketch2.addConstraint(Sketcher.Constraint("Equal", 21, 23))
sketch2.addConstraint(Sketcher.Constraint("Equal", 23, 24))
sketch2.addConstraint(Sketcher.Constraint("Equal", 24, 26))
sketch2.addConstraint(Sketcher.Constraint("Equal", 26, 27))
sketch2.addConstraint(Sketcher.Constraint("Equal", 27, 29))
sketch2.addConstraint(Sketcher.Constraint("Equal", 29, 30))
sketch2.addConstraint(Sketcher.Constraint("Equal", 30, 32))
sketch2.addConstraint(Sketcher.Constraint("Equal", 32, 33))
sketch2.addConstraint(Sketcher.Constraint("Equal", 33, 35))
sketch2.addConstraint(Sketcher.Constraint("Equal", 35, 36))
sketch2.addConstraint(Sketcher.Constraint("Equal", 36, 38))
sketch2.addConstraint(Sketcher.Constraint("Diameter", 0, 8.8))
sketch2.addConstraint(Sketcher.Constraint("Radius", 1, 2.899999))
sketch2.addConstraint(Sketcher.Constraint("DistanceY", -1, 1, 38, 2, 2.7))
sketch2.addConstraint(Sketcher.Constraint("Distance", 2, 0.318502))
sketch2.addConstraint(Sketcher.Constraint("DistanceX", -1, 1, 2, 2, 0.3384))
sketch2.addConstraint(Sketcher.Constraint("DistanceY", 15, 2, -1, 1, 0.997698))
sketch2.addConstraint(Sketcher.Constraint("DistanceY", -1, 1, 30, 2, 2.281398))
sketch2.addConstraint(Sketcher.Constraint("DistanceX", -1, 1, 31, 2, 1.616502))
sketch2.addConstraint(Sketcher.Constraint("DistanceX", -1, 1, 1, 2, 0.107421))
sketch2.addConstraint(Sketcher.Constraint("DistanceY", 4, 2, -1, 1, 2.780249))
sketch2.addConstraint(Sketcher.Constraint("DistanceX", -1, 1, 7, 2, 1.490261))
sketch2.addConstraint(Sketcher.Constraint("DistanceX", -1, 1, 8, 2, 1.58702))
sketch2.addConstraint(Sketcher.Constraint("DistanceX", -1, 1, 10, 2, 2.062131))
sketch2.addConstraint(Sketcher.Constraint("DistanceX", -1, 1, 12, 2, 2.389311))
sketch2.addConstraint(Sketcher.Constraint("DistanceX", -1, 1, 13, 2, 2.50443))
sketch2.addConstraint(Sketcher.Constraint("DistanceY", 16, 2, -1, 1, 0.79337))
sketch2.addConstraint(Sketcher.Constraint("DistanceY", 17, 2, -1, 1, 0.50593))
sketch2.addConstraint(Sketcher.Constraint("DistanceY", 19, 2, -1, 1, 0.074758))
sketch2.addConstraint(Sketcher.Constraint("DistanceX", -1, 1, 22, 2, 2.826549))
sketch2.addConstraint(Sketcher.Constraint("DistanceX", -1, 1, 25, 2, 2.57646))
sketch2.addConstraint(Sketcher.Constraint("DistanceY", -1, 1, 27, 2, 1.764491))
sketch2.addConstraint(Sketcher.Constraint("DistanceX", -1, 1, 28, 2, 2.164482))
sketch2.addConstraint(Sketcher.Constraint("DistanceY", -1, 1, 32, 2, 2.366028))
sketch2.addConstraint(Sketcher.Constraint("DistanceX", -1, 1, 34, 2, 0.966951))
sketch2.addConstraint(Sketcher.Constraint("DistanceX", -1, 1, 36, 2, 0.469791))
sketch2.addConstraint(Sketcher.Constraint("DistanceX", -1, 1, 5, 2, 0.993936))
sketch2.addConstraint(Sketcher.Constraint("DistanceX", -1, 1, 20, 2, 2.694672))
sketch2.addConstraint(Sketcher.Constraint("DistanceX", -1, 1, 23, 2, 2.567853))
pad2 = body.newObject("PartDesign::Pad", "Pad001")
pad2.Profile = sketch2
pad2.Length = 3.2
pad2.Reversed = True

# Sketch on XZ plane
sketch3 = body.newObject("Sketcher::SketchObject", "Sketch002")
sketch3.AttachmentSupport = (doc.getObject("XZ_Plane"), [""])
sketch3.MapMode = "FlatFace"
sketch3.addGeometry(Part.Circle(App.Vector(0, 0, 0), App.Vector(0, 0, 1), 10), False)
sketch3.addGeometry(Part.Circle(App.Vector(-3, 7, 0), App.Vector(0, 0, 1), 0.75), False)
sketch3.addGeometry(Part.Circle(App.Vector(-7, 3, 0), App.Vector(0, 0, 1), 0.75), False)
sketch3.addGeometry(Part.Circle(App.Vector(0, 7, 0), App.Vector(0, 0, 1), 0.75), False)
sketch3.addGeometry(Part.Circle(App.Vector(3, 7, 0), App.Vector(0, 0, 1), 0.75), False)
sketch3.addGeometry(Part.Circle(App.Vector(7, 3, 0), App.Vector(0, 0, 1), 0.75), False)
sketch3.addGeometry(Part.Circle(App.Vector(-7, 0, 0), App.Vector(0, 0, 1), 0.75), False)
sketch3.addGeometry(Part.Circle(App.Vector(-7, -3, 0), App.Vector(0, 0, 1), 0.75), False)
sketch3.addGeometry(Part.Circle(App.Vector(-3, -7, 0), App.Vector(0, 0, 1), 0.75), False)
sketch3.addGeometry(Part.Circle(App.Vector(0, 0, 0), App.Vector(0, 0, 1), 1.5), False)
sketch3.addGeometry(Part.Circle(App.Vector(7, 0, 0), App.Vector(0, 0, 1), 0.75), False)
sketch3.addGeometry(Part.Circle(App.Vector(7, -3, 0), App.Vector(0, 0, 1), 0.75), False)
sketch3.addGeometry(Part.Circle(App.Vector(0, -7, 0), App.Vector(0, 0, 1), 0.75), False)
sketch3.addGeometry(Part.Circle(App.Vector(3, -7, 0), App.Vector(0, 0, 1), 0.75), False)
sketch3.addConstraint(Sketcher.Constraint("Coincident", 0, 3, -1, 1))
sketch3.addConstraint(Sketcher.Constraint("Coincident", 9, 3, -1, 1))
sketch3.addConstraint(Sketcher.Constraint("Equal", 1, 2))
sketch3.addConstraint(Sketcher.Constraint("Equal", 2, 3))
sketch3.addConstraint(Sketcher.Constraint("Equal", 3, 4))
sketch3.addConstraint(Sketcher.Constraint("Equal", 4, 5))
sketch3.addConstraint(Sketcher.Constraint("Equal", 5, 6))
sketch3.addConstraint(Sketcher.Constraint("Equal", 6, 7))
sketch3.addConstraint(Sketcher.Constraint("Equal", 7, 8))
sketch3.addConstraint(Sketcher.Constraint("Equal", 8, 10))
sketch3.addConstraint(Sketcher.Constraint("Equal", 10, 11))
sketch3.addConstraint(Sketcher.Constraint("Equal", 11, 12))
sketch3.addConstraint(Sketcher.Constraint("Equal", 12, 13))
sketch3.addConstraint(Sketcher.Constraint("Symmetric", 5, 3, 7, 3, -1, 1))
sketch3.addConstraint(Sketcher.Constraint("Symmetric", 4, 3, 8, 3, -1, 1))
sketch3.addConstraint(Sketcher.Constraint("Symmetric", 6, 3, 10, 3, -1, 1))
sketch3.addConstraint(Sketcher.Constraint("Symmetric", 2, 3, 11, 3, -1, 1))
sketch3.addConstraint(Sketcher.Constraint("Symmetric", 3, 3, 12, 3, -1, 1))
sketch3.addConstraint(Sketcher.Constraint("Symmetric", 1, 3, 13, 3, -1, 1))
sketch3.addConstraint(Sketcher.Constraint("Symmetric", 1, 3, 4, 3, -2))
sketch3.addConstraint(Sketcher.Constraint("Symmetric", 2, 3, 5, 3, -2))
sketch3.addConstraint(Sketcher.Constraint("PointOnObject", 3, 3, -2))
sketch3.addConstraint(Sketcher.Constraint("PointOnObject", 6, 3, -1))
sketch3.addConstraint(Sketcher.Constraint("Horizontal", 1, 3, 3, 3))
sketch3.addConstraint(Sketcher.Constraint("Vertical", 2, 3, 6, 3))
sketch3.addConstraint(Sketcher.Constraint("Diameter", 0, 20.0))
sketch3.addConstraint(Sketcher.Constraint("Diameter", 9, 3.0))
sketch3.addConstraint(Sketcher.Constraint("Diameter", 1, 1.5))
sketch3.addConstraint(Sketcher.Constraint("DistanceX", 1, 3, -1, 1, 3.0))
sketch3.addConstraint(Sketcher.Constraint("DistanceY", -1, 1, 1, 3, 7.0))
sketch3.addConstraint(Sketcher.Constraint("DistanceX", 2, 3, -1, 1, 7.0))
sketch3.addConstraint(Sketcher.Constraint("DistanceY", -1, 1, 2, 3, 3.0))
pad3 = body.newObject("PartDesign::Pad", "Pad002")
pad3.Profile = sketch3
pad3.Length = 2.3
pad3.Midplane = True

# Sketch on XZ plane
sketch4 = body.newObject("Sketcher::SketchObject", "Sketch003")
sketch4.AttachmentSupport = (doc.getObject("XZ_Plane"), [""])
sketch4.MapMode = "FlatFace"
sketch4.AttachmentOffset = App.Placement(App.Vector(0, 0, -0.55), App.Rotation())
sketch4.addGeometry(Part.Circle(App.Vector(0, 0, 0), App.Vector(0, 0, 1), 10), False)
sketch4.addGeometry(Part.Circle(App.Vector(0, 0, 0), App.Vector(0, 0, 1), 9), False)
sketch4.addConstraint(Sketcher.Constraint("Coincident", 0, 3, -1, 1))
sketch4.addConstraint(Sketcher.Constraint("Coincident", 1, 3, -1, 1))
sketch4.addConstraint(Sketcher.Constraint("Diameter", 0, 20.0))
sketch4.addConstraint(Sketcher.Constraint("Diameter", 1, 18.0))
pocket1 = body.newObject("PartDesign::Pocket", "Pocket")
pocket1.Profile = sketch4
pocket1.Length = 1
pocket1.Reversed = True

# Sketch on XZ plane
sketch5 = body.newObject("Sketcher::SketchObject", "Sketch004")
sketch5.AttachmentSupport = (doc.getObject("XZ_Plane"), [""])
sketch5.MapMode = "FlatFace"
sketch5.AttachmentOffset = App.Placement(App.Vector(0, 0, -1.15), App.Rotation())
sketch5.addGeometry(Part.Circle(App.Vector(0, 0, 0), App.Vector(0, 0, 1), 11.99857), False)
sketch5.addGeometry(Part.Circle(App.Vector(0, 0, 0), App.Vector(0, 0, 1), 10), False)
sketch5.addConstraint(Sketcher.Constraint("Coincident", 0, 3, -1, 1))
sketch5.addConstraint(Sketcher.Constraint("Coincident", 1, 3, -1, 1))
sketch5.addConstraint(Sketcher.Constraint("Diameter", 1, 20.0))
sketch5.addConstraint(Sketcher.Constraint("Diameter", 0, 23.99714))
pad4 = body.newObject("PartDesign::Pad", "Pad003")
pad4.Profile = sketch5
pad4.Length = 0.55

# Sketch on XZ plane
sketch6 = body.newObject("Sketcher::SketchObject", "Sketch005")
sketch6.AttachmentSupport = (doc.getObject("XZ_Plane"), [""])
sketch6.MapMode = "FlatFace"
sketch6.AttachmentOffset = App.Placement(App.Vector(0, 0, 0.45), App.Rotation())
sketch6.addGeometry(Part.Circle(App.Vector(0, 0, 0), App.Vector(0, 0, 1), 11.99857), False)
sketch6.addGeometry(Part.Circle(App.Vector(0, 0, 0), App.Vector(0, 0, 1), 10), False)
sketch6.addConstraint(Sketcher.Constraint("Coincident", 0, 3, -1, 1))
sketch6.addConstraint(Sketcher.Constraint("Coincident", 1, 3, -1, 1))
sketch6.addConstraint(Sketcher.Constraint("Diameter", 1, 20.0))
sketch6.addConstraint(Sketcher.Constraint("Diameter", 0, 23.99714))
pad5 = body.newObject("PartDesign::Pad", "Pad004")
pad5.Profile = sketch6
pad5.Length = 0.7

# Sketch on XZ plane
sketch7 = body.newObject("Sketcher::SketchObject", "Sketch006")
sketch7.AttachmentSupport = (doc.getObject("XZ_Plane"), [""])
sketch7.MapMode = "FlatFace"
sketch7.AttachmentOffset = App.Placement(App.Vector(0, 0, -1.15), App.Rotation())
sketch7.addGeometry(Part.Circle(App.Vector(0, 0, 0), App.Vector(0, 0, 1), 11.99857), False)
sketch7.addGeometry(Part.Circle(App.Vector(0, 0, 0), App.Vector(0, 0, 1), 10), False)
sketch7.addConstraint(Sketcher.Constraint("Coincident", 0, 3, -1, 1))
sketch7.addConstraint(Sketcher.Constraint("Coincident", 1, 3, -1, 1))
sketch7.addConstraint(Sketcher.Constraint("Diameter", 1, 20.0))
sketch7.addConstraint(Sketcher.Constraint("Diameter", 0, 23.99714))
pad6 = body.newObject("PartDesign::Pad", "Pad005")
pad6.Profile = sketch7
pad6.Length = 0.6

# Sketch on XZ plane
sketch8 = body.newObject("Sketcher::SketchObject", "Sketch007")
sketch8.AttachmentSupport = (doc.getObject("XZ_Plane"), [""])
sketch8.MapMode = "FlatFace"
sketch8.AttachmentOffset = App.Placement(App.Vector(0, 0, -1.15), App.Rotation())
sketch8.addGeometry(Part.Circle(App.Vector(0, 0, 0), App.Vector(0, 0, 1), 11), False)
sketch8.addGeometry(Part.Circle(App.Vector(0, 0, 0), App.Vector(0, 0, 1), 9.794741), False)
sketch8.addConstraint(Sketcher.Constraint("Coincident", 0, 3, -1, 1))
sketch8.addConstraint(Sketcher.Constraint("Coincident", 1, 3, -1, 1))
sketch8.addConstraint(Sketcher.Constraint("Diameter", 0, 22.0))
sketch8.addConstraint(Sketcher.Constraint("Diameter", 1, 19.589482))
pad7 = body.newObject("PartDesign::Pad", "Pad006")
pad7.Profile = sketch8
pad7.Length = 1.6

# Sketch on XZ plane
sketch9 = body.newObject("Sketcher::SketchObject", "Sketch008")
sketch9.AttachmentSupport = (doc.getObject("XZ_Plane"), [""])
sketch9.MapMode = "FlatFace"
sketch9.AttachmentOffset = App.Placement(App.Vector(0, 0, -1.15), App.Rotation())
sketch9.addGeometry(Part.Circle(App.Vector(0, 0, 0), App.Vector(0, 0, 1), 11.99857), False)
sketch9.addGeometry(Part.Circle(App.Vector(0, 0, 0), App.Vector(0, 0, 1), 4.4), False)
sketch9.addConstraint(Sketcher.Constraint("Coincident", 0, 3, -1, 1))
sketch9.addConstraint(Sketcher.Constraint("Coincident", 1, 3, -1, 1))
sketch9.addConstraint(Sketcher.Constraint("Diameter", 1, 8.8))
sketch9.addConstraint(Sketcher.Constraint("Diameter", 0, 23.99714))
pad8 = body.newObject("PartDesign::Pad", "Pad007")
pad8.Profile = sketch9
pad8.Length = 2
pad8.Reversed = True

# Sketch on XZ plane
sketch10 = body.newObject("Sketcher::SketchObject", "Sketch009")
sketch10.AttachmentSupport = (doc.getObject("XZ_Plane"), [""])
sketch10.MapMode = "FlatFace"
sketch10.AttachmentOffset = App.Placement(App.Vector(0, 0, -0.15), App.Rotation())
sketch10.addGeometry(Part.Circle(App.Vector(0, 0, 0), App.Vector(0, 0, 1), 11.99857), False)
sketch10.addGeometry(Part.Circle(App.Vector(0, 0, 0), App.Vector(0, 0, 1), 11), False)
sketch10.addConstraint(Sketcher.Constraint("Coincident", 0, 3, -1, 1))
sketch10.addConstraint(Sketcher.Constraint("Coincident", 1, 3, -1, 1))
sketch10.addConstraint(Sketcher.Constraint("Diameter", 1, 22.0))
sketch10.addConstraint(Sketcher.Constraint("Diameter", 0, 23.99714))
pocket2 = body.newObject("PartDesign::Pocket", "Pocket001")
pocket2.Profile = sketch10
pocket2.Length = 2.2

# Sketch on XZ plane
sketch11 = body.newObject("Sketcher::SketchObject", "Sketch010")
sketch11.AttachmentSupport = (doc.getObject("XZ_Plane"), [""])
sketch11.MapMode = "FlatFace"
sketch11.AttachmentOffset = App.Placement(App.Vector(0, 0, 11.15), App.Rotation())
sketch11.addGeometry(Part.Circle(App.Vector(-3, -7, 0), App.Vector(0, 0, 1), 0.75), False)
sketch11.addGeometry(Part.Circle(App.Vector(-7, -3, 0), App.Vector(0, 0, 1), 0.75), False)
sketch11.addGeometry(Part.Circle(App.Vector(-7, 0, 0), App.Vector(0, 0, 1), 0.75), False)
sketch11.addGeometry(Part.Circle(App.Vector(-7, 3, 0), App.Vector(0, 0, 1), 0.75), False)
sketch11.addGeometry(Part.Circle(App.Vector(-3, 7, 0), App.Vector(0, 0, 1), 0.75), False)
sketch11.addGeometry(Part.Circle(App.Vector(0, 7, 0), App.Vector(0, 0, 1), 0.75), False)
sketch11.addGeometry(Part.Circle(App.Vector(3, 7, 0), App.Vector(0, 0, 1), 0.75), False)
sketch11.addGeometry(Part.Circle(App.Vector(7, 3, 0), App.Vector(0, 0, 1), 0.75), False)
sketch11.addGeometry(Part.Circle(App.Vector(7, 0, 0), App.Vector(0, 0, 1), 0.75), False)
sketch11.addGeometry(Part.Circle(App.Vector(7, -3, 0), App.Vector(0, 0, 1), 0.75), False)
sketch11.addGeometry(Part.Circle(App.Vector(3, -7, 0), App.Vector(0, 0, 1), 0.75), False)
sketch11.addGeometry(Part.Circle(App.Vector(0, -7, 0), App.Vector(0, 0, 1), 0.75), False)
sketch11.addConstraint(Sketcher.Constraint("Equal", 0, 1))
sketch11.addConstraint(Sketcher.Constraint("Equal", 1, 2))
sketch11.addConstraint(Sketcher.Constraint("Equal", 2, 3))
sketch11.addConstraint(Sketcher.Constraint("Equal", 3, 4))
sketch11.addConstraint(Sketcher.Constraint("Equal", 4, 5))
sketch11.addConstraint(Sketcher.Constraint("Equal", 5, 6))
sketch11.addConstraint(Sketcher.Constraint("Equal", 6, 7))
sketch11.addConstraint(Sketcher.Constraint("Equal", 7, 8))
sketch11.addConstraint(Sketcher.Constraint("Equal", 8, 9))
sketch11.addConstraint(Sketcher.Constraint("Equal", 9, 10))
sketch11.addConstraint(Sketcher.Constraint("Equal", 10, 11))
sketch11.addConstraint(Sketcher.Constraint("Symmetric", 0, 3, 6, 3, -1, 1))
sketch11.addConstraint(Sketcher.Constraint("Symmetric", 1, 3, 7, 3, -1, 1))
sketch11.addConstraint(Sketcher.Constraint("Symmetric", 2, 3, 8, 3, -1, 1))
sketch11.addConstraint(Sketcher.Constraint("Symmetric", 3, 3, 9, 3, -1, 1))
sketch11.addConstraint(Sketcher.Constraint("Symmetric", 4, 3, 10, 3, -1, 1))
sketch11.addConstraint(Sketcher.Constraint("Symmetric", 5, 3, 11, 3, -1, 1))
sketch11.addConstraint(Sketcher.Constraint("Symmetric", 4, 3, 6, 3, -2))
sketch11.addConstraint(Sketcher.Constraint("Symmetric", 3, 3, 7, 3, -2))
sketch11.addConstraint(Sketcher.Constraint("PointOnObject", 2, 3, -1))
sketch11.addConstraint(Sketcher.Constraint("PointOnObject", 5, 3, -2))
sketch11.addConstraint(Sketcher.Constraint("Horizontal", 4, 3, 5, 3))
sketch11.addConstraint(Sketcher.Constraint("Vertical", 1, 3, 2, 3))
sketch11.addConstraint(Sketcher.Constraint("Diameter", 0, 1.5))
sketch11.addConstraint(Sketcher.Constraint("DistanceX", 0, 3, -1, 1, 3.0))
sketch11.addConstraint(Sketcher.Constraint("DistanceY", 0, 3, -1, 1, 7.0))
sketch11.addConstraint(Sketcher.Constraint("DistanceX", 1, 3, -1, 1, 7.0))
sketch11.addConstraint(Sketcher.Constraint("DistanceY", 1, 3, -1, 1, 3.0))
pocket3 = body.newObject("PartDesign::Pocket", "Pocket002")
pocket3.Profile = sketch11
pocket3.Length = 32.2

# Sketch on XZ plane
sketch12 = body.newObject("Sketcher::SketchObject", "Sketch011")
sketch12.AttachmentSupport = (doc.getObject("XZ_Plane"), [""])
sketch12.MapMode = "FlatFace"
sketch12.AttachmentOffset = App.Placement(App.Vector(0, 0, -2.35), App.Rotation())
sketch12.addGeometry(Part.Circle(App.Vector(0, 0, 0), App.Vector(0, 0, 1), 11.99857), False)
sketch12.addGeometry(Part.Circle(App.Vector(0, 0, 0), App.Vector(0, 0, 1), 10.005168), False)
sketch12.addConstraint(Sketcher.Constraint("Coincident", 0, 3, -1, 1))
sketch12.addConstraint(Sketcher.Constraint("Coincident", 1, 3, -1, 1))
sketch12.addConstraint(Sketcher.Constraint("Diameter", 0, 23.99714))
sketch12.addConstraint(Sketcher.Constraint("Diameter", 1, 20.010336))
pocket4 = body.newObject("PartDesign::Pocket", "Pocket003")
pocket4.Profile = sketch12
pocket4.Length = 2.8
pocket4.Reversed = True

doc.recompute()
